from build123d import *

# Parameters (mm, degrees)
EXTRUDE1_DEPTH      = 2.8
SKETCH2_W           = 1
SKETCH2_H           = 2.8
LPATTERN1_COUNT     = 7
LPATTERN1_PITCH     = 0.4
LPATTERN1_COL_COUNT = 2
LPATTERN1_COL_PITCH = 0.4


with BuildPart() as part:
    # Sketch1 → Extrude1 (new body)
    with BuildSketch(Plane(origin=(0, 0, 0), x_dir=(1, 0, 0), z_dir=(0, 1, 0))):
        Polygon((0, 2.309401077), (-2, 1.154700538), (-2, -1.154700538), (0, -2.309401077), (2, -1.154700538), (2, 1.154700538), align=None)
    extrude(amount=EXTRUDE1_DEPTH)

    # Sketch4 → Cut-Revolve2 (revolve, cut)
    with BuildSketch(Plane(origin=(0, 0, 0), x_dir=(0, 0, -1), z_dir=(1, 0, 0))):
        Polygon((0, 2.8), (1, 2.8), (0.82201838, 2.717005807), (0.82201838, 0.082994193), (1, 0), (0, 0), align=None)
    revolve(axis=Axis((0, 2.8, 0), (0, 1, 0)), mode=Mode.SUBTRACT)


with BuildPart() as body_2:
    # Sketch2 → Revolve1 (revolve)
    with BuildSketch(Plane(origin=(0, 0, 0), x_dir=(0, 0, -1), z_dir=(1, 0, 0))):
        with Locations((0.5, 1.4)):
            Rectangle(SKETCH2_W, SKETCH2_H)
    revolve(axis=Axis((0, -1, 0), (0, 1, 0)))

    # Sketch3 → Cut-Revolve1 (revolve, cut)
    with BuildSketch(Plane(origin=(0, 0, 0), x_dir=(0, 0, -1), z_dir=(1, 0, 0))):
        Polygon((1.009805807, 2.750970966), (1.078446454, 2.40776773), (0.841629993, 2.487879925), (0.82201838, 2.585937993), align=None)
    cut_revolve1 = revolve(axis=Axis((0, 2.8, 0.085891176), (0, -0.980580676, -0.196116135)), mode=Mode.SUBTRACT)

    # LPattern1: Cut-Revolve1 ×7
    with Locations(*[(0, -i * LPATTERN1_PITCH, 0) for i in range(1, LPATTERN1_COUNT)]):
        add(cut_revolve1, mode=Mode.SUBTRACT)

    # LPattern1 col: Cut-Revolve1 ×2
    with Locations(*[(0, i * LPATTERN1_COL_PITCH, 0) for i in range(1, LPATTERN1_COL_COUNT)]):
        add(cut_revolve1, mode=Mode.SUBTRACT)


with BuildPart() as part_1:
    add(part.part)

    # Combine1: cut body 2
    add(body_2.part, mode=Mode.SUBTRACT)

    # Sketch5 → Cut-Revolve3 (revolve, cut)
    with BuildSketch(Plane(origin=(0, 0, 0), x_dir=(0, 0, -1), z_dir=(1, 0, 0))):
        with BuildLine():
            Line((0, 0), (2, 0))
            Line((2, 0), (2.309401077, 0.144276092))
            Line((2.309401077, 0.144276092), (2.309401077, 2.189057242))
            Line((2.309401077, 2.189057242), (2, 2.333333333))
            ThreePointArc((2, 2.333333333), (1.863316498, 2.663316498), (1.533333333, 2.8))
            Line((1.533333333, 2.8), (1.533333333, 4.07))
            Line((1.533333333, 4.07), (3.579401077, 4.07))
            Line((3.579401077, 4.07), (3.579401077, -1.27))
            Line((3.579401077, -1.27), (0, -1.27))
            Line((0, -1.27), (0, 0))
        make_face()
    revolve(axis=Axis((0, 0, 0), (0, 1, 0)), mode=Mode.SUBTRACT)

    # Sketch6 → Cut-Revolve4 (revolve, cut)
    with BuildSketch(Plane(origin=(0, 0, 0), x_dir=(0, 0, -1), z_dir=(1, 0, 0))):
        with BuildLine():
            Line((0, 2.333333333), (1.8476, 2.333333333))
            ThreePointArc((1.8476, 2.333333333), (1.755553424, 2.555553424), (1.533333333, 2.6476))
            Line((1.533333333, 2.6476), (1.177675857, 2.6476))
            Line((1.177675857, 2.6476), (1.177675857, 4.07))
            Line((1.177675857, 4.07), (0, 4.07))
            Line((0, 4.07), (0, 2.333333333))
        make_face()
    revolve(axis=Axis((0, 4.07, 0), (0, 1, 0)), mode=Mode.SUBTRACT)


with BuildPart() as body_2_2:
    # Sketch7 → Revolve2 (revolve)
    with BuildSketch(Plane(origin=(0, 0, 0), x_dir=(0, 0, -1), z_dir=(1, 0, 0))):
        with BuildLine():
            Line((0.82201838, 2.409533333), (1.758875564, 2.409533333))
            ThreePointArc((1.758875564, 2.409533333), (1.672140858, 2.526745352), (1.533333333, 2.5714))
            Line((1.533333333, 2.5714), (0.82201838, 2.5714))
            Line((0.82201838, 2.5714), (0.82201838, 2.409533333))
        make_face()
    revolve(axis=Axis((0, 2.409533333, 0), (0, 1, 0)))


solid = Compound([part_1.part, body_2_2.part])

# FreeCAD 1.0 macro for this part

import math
import FreeCAD as App
import Part
import Sketcher
Q = App.Units.Quantity

doc = App.newDocument("Part")
body = doc.addObject("PartDesign::Body", "Body")

# Sketch on XZ plane
sketch1 = doc.addObject("Sketcher::SketchObject", "Sketch")
body.addObject(sketch1)
sketch1.AttachmentSupport = (doc.XZ_Plane, [""])
sketch1.MapMode = "FlatFace"
sketch1.addGeometry([
    Part.LineSegment(App.Vector(0, -2.3, 0), App.Vector(-2, -1.2, 0)),  # 0
    Part.LineSegment(App.Vector(-2, -1.2, 0), App.Vector(-2, 1.2, 0)),  # 1
    Part.LineSegment(App.Vector(-2, 1.2, 0), App.Vector(0, 2.3, 0)),  # 2
    Part.LineSegment(App.Vector(0, 2.3, 0), App.Vector(2, 1.2, 0)),  # 3
    Part.LineSegment(App.Vector(2, 1.2, 0), App.Vector(2, -1.2, 0)),  # 4
    Part.LineSegment(App.Vector(2, -1.2, 0), App.Vector(0, -2.3, 0)),  # 5
], False)
sketch1.addConstraint([
    Sketcher.Constraint("Coincident", 0, 2, 1, 1),
    Sketcher.Constraint("Coincident", 1, 2, 2, 1),
    Sketcher.Constraint("Coincident", 2, 2, 3, 1),
    Sketcher.Constraint("Coincident", 3, 2, 4, 1),
    Sketcher.Constraint("Coincident", 4, 2, 5, 1),
    Sketcher.Constraint("Coincident", 5, 2, 0, 1),
    Sketcher.Constraint("Vertical", 1),
    Sketcher.Constraint("Vertical", 4),
    Sketcher.Constraint("Symmetric", 0, 2, 3, 2, -1, 1),
    Sketcher.Constraint("Symmetric", 2, 2, 5, 2, -1, 1),
    Sketcher.Constraint("PointOnObject", 2, 2, -2),
    Sketcher.Constraint("Parallel", 2, 5),
    Sketcher.Constraint("Horizontal", 1, 2, 3, 2),
    Sketcher.Constraint("Angle", 0, Q("150 deg")),
    Sketcher.Constraint("DistanceX", 0, 2, -1, 1, 2.0),
    Sketcher.Constraint("DistanceY", 1, 1, 1, 2, 2.309401),
])
pad1 = doc.addObject("PartDesign::Pad", "Pad")
body.addObject(pad1)
pad1.Profile = sketch1
pad1.Length = 2.8
pad1.Reversed = True

# Sketch on YZ plane
sketch2 = doc.addObject("Sketcher::SketchObject", "Sketch001")
body.addObject(sketch2)
sketch2.AttachmentSupport = (doc.YZ_Plane, [""])
sketch2.MapMode = "FlatFace"
sketch2.addGeometry([
    Part.LineSegment(App.Vector(2.8, -1, 0), App.Vector(2.8, 0, 0)),  # 0
    Part.LineSegment(App.Vector(2.8, 0, 0), App.Vector(0, 0, 0)),  # 1
    Part.LineSegment(App.Vector(0, 0, 0), App.Vector(0, -1, 0)),  # 2
    Part.LineSegment(App.Vector(0, -1, 0), App.Vector(0.08, -0.82, 0)),  # 3
    Part.LineSegment(App.Vector(0.08, -0.82, 0), App.Vector(2.72, -0.82, 0)),  # 4
    Part.LineSegment(App.Vector(2.72, -0.82, 0), App.Vector(2.8, -1, 0)),  # 5
], False)
sketch2.addConstraint([
    Sketcher.Constraint("Coincident", 0, 2, 1, 1),
    Sketcher.Constraint("Coincident", 1, 2, 2, 1),
    Sketcher.Constraint("Coincident", 2, 2, 3, 1),
    Sketcher.Constraint("Coincident", 3, 2, 4, 1),
    Sketcher.Constraint("Coincident", 4, 2, 5, 1),
    Sketcher.Constraint("Coincident", 5, 2, 0, 1),
    Sketcher.Constraint("Vertical", 0),
    Sketcher.Constraint("Horizontal", 1),
    Sketcher.Constraint("Vertical", 2),
    Sketcher.Constraint("Horizontal", 4),
    Sketcher.Constraint("Coincident", 1, 2, -1, 1),
    Sketcher.Constraint("Horizontal", 2, 2, 5, 2),
    Sketcher.Constraint("Equal", 3, 5),
    Sketcher.Constraint("DistanceY", 0, 1, 0, 2, 1.0),
    Sketcher.Constraint("Angle", 3, Q("65 deg")),
    Sketcher.Constraint("DistanceX", 1, 2, 1, 1, 2.8),
    Sketcher.Constraint("DistanceX", 4, 1, 4, 2, 2.634012),
])
groove = doc.addObject("PartDesign::Groove", "Groove")
body.addObject(groove)
groove.Profile = sketch2
groove.ReferenceAxis = (sketch2, ["H_Axis"])
groove.Angle = 360
body2 = doc.addObject("PartDesign::Body", "Body001")

# Sketch on YZ plane
sketch3 = doc.addObject("Sketcher::SketchObject", "Sketch002")
body2.addObject(sketch3)
sketch3.AttachmentSupport = (doc.getObject("YZ_Plane001"), [""])
sketch3.MapMode = "FlatFace"
sketch3.addGeometry([
    Part.LineSegment(App.Vector(2.8, 0, 0), App.Vector(0, 0, 0)),
    Part.LineSegment(App.Vector(0, 0, 0), App.Vector(0, -1, 0)),
    Part.LineSegment(App.Vector(0, -1, 0), App.Vector(2.8, -1, 0)),
    Part.LineSegment(App.Vector(2.8, -1, 0), App.Vector(2.8, 0, 0)),
], False)
sketch3.addConstraint([
    Sketcher.Constraint("Coincident", 0, 2, 1, 1),
    Sketcher.Constraint("Coincident", 1, 2, 2, 1),
    Sketcher.Constraint("Coincident", 2, 2, 3, 1),
    Sketcher.Constraint("Coincident", 3, 2, 0, 1),
    Sketcher.Constraint("Horizontal", 0),
    Sketcher.Constraint("Vertical", 1),
    Sketcher.Constraint("Horizontal", 2),
    Sketcher.Constraint("Vertical", 3),
    Sketcher.Constraint("Coincident", 0, 2, -1, 1),
    Sketcher.Constraint("DistanceY", 1, 2, 1, 1, 1.0),
    Sketcher.Constraint("DistanceX", 0, 2, 0, 1, 2.8),
])
revolution = doc.addObject("PartDesign::Revolution", "Revolution")
body2.addObject(revolution)
revolution.Profile = sketch3
revolution.ReferenceAxis = (sketch3, ["H_Axis"])
revolution.Angle = 360

# Sketch on YZ plane
sketch4 = doc.addObject("Sketcher::SketchObject", "Sketch003")
body2.addObject(sketch4)
sketch4.AttachmentSupport = (doc.getObject("YZ_Plane001"), [""])
sketch4.MapMode = "FlatFace"
sketch4.addGeometry([
    Part.LineSegment(App.Vector(2.41, -1.08, 0), App.Vector(2.75, -1.01, 0)),
    Part.LineSegment(App.Vector(2.75, -1.01, 0), App.Vector(2.59, -0.82, 0)),
    Part.LineSegment(App.Vector(2.59, -0.82, 0), App.Vector(2.49, -0.84, 0)),
    Part.LineSegment(App.Vector(2.49, -0.84, 0), App.Vector(2.41, -1.08, 0)),
], False)
sketch4.addGeometry(Part.LineSegment(App.Vector(2.54, 0.03, 0), App.Vector(2.2, -0.03, 0)), True)  # axis
sketch4.addConstraint([
    Sketcher.Constraint("Coincident", 0, 2, 1, 1),
    Sketcher.Constraint("Coincident", 1, 2, 2, 1),
    Sketcher.Constraint("Coincident", 2, 2, 3, 1),
    Sketcher.Constraint("Coincident", 3, 2, 0, 1),
    Sketcher.Constraint("Parallel", 0, 2),
    Sketcher.Constraint("Parallel", 2, 4),
    Sketcher.Constraint("Equal", 1, 3),
    Sketcher.Constraint("Equal", 0, 4),
    Sketcher.Constraint("Distance", 2, 0.1),
    Sketcher.Constraint("Distance", 0, 0.35),
    Sketcher.Constraint("Distance", 1, 0.25),
    Sketcher.Constraint("DistanceY", 1, 2, 4, 2, 0.787698),
    Sketcher.Constraint("DistanceX", -1, 1, 0, 2, 2.750971),
    Sketcher.Constraint("DistanceY", 1, 2, -1, 1, 0.822018),
    Sketcher.Constraint("DistanceX", -1, 1, 2, 2, 2.48788),
    Sketcher.Constraint("DistanceX", 3, 2, 4, 1, 0.134378),
])
groove2 = doc.addObject("PartDesign::Groove", "Groove001")
body2.addObject(groove2)
groove2.Profile = sketch4
groove2.ReferenceAxis = (sketch4, ["Axis0"])
groove2.Angle = 360
doc.recompute()

linearpattern = doc.addObject("PartDesign::LinearPattern", "LinearPattern")
body2.addObject(linearpattern)
linearpattern.Originals = [groove2]
linearpattern.Direction = (doc.getObject("Y_Axis001"), [""])
linearpattern.Mode = "offset"
linearpattern.Offset = 0.4
linearpattern.Occurrences = 7
linearpattern.Reversed = True
body2.Tip = linearpattern
doc.recompute()

linearpattern2 = doc.addObject("PartDesign::LinearPattern", "LinearPattern001")
body2.addObject(linearpattern2)
linearpattern2.Originals = [groove2]
linearpattern2.Direction = (doc.getObject("Y_Axis001"), [""])
linearpattern2.Mode = "offset"
linearpattern2.Offset = 0.4
linearpattern2.Occurrences = 2
body2.Tip = linearpattern2
doc.recompute()

boolean = doc.addObject("PartDesign::Boolean", "Boolean")
body.addObject(boolean)
boolean.Type = "Cut"
boolean.addObjects([body2])

# Sketch on YZ plane
sketch5 = doc.addObject("Sketcher::SketchObject", "Sketch004")
body.addObject(sketch5)
sketch5.AttachmentSupport = (doc.YZ_Plane, [""])
sketch5.MapMode = "FlatFace"
sketch5.addGeometry([
    Part.LineSegment(App.Vector(0, -2, 0), App.Vector(0, 0, 0)),  # 0
    Part.LineSegment(App.Vector(0, 0, 0), App.Vector(-1.27, 0, 0)),  # 1
    Part.LineSegment(App.Vector(-1.27, 0, 0), App.Vector(-1.27, -3.58, 0)),  # 2
    Part.LineSegment(App.Vector(-1.27, -3.58, 0), App.Vector(4.07, -3.58, 0)),  # 3
    Part.LineSegment(App.Vector(4.07, -3.58, 0), App.Vector(4.07, -1.53, 0)),  # 4
    Part.LineSegment(App.Vector(4.07, -1.53, 0), App.Vector(2.8, -1.53, 0)),  # 5
    Part.ArcOfCircle(Part.Circle(App.Vector(2.33, -1.53, 0), App.Vector(0, 0, 1), 0.47), math.radians(-90), math.radians(0)),  # 6
    Part.LineSegment(App.Vector(2.33, -2, 0), App.Vector(2.19, -2.31, 0)),  # 7
    Part.LineSegment(App.Vector(2.19, -2.31, 0), App.Vector(0.14, -2.31, 0)),  # 8
    Part.LineSegment(App.Vector(0.14, -2.31, 0), App.Vector(0, -2, 0)),  # 9
], False)
sketch5.addConstraint([
    Sketcher.Constraint("Coincident", 0, 2, 1, 1),
    Sketcher.Constraint("Coincident", 1, 2, 2, 1),
    Sketcher.Constraint("Coincident", 2, 2, 3, 1),
    Sketcher.Constraint("Coincident", 3, 2, 4, 1),
    Sketcher.Constraint("Coincident", 4, 2, 5, 1),
    Sketcher.Constraint("Coincident", 5, 2, 6, 2),
    Sketcher.Constraint("Coincident", 6, 1, 7, 1),
    Sketcher.Constraint("Coincident", 7, 2, 8, 1),
    Sketcher.Constraint("Coincident", 8, 2, 9, 1),
    Sketcher.Constraint("Coincident", 9, 2, 0, 1),
    Sketcher.Constraint("Vertical", 0),
    Sketcher.Constraint("Horizontal", 1),
    Sketcher.Constraint("Vertical", 2),
    Sketcher.Constraint("Horizontal", 3),
    Sketcher.Constraint("Vertical", 4),
    Sketcher.Constraint("Horizontal", 5),
    Sketcher.Constraint("Horizontal", 8),
    Sketcher.Constraint("Coincident", 0, 2, -1, 1),
    Sketcher.Constraint("Horizontal", 6, 3, 4, 2),
    Sketcher.Constraint("Horizontal", 6, 1, 9, 2),
    Sketcher.Constraint("Equal", 1, 5),
    Sketcher.Constraint("Equal", 7, 9),
    Sketcher.Constraint("DistanceY", 0, 1, 0, 2, 2.0),
    Sketcher.Constraint("Angle", 7, Q("-115 deg")),
    Sketcher.Constraint("DistanceX", 1, 2, 1, 1, 1.27),
    Sketcher.Constraint("DistanceX", 3, 1, 3, 2, 5.34),
    Sketcher.Constraint("DistanceY", 3, 2, 7, 2, 1.27),
    Sketcher.Constraint("DistanceY", 2, 2, 2, 1, 3.579401),
    Sketcher.Constraint("Radius", 6, 0.466667),
    Sketcher.Constraint("DistanceX", 8, 2, 8, 1, 2.044781),
])
groove3 = doc.addObject("PartDesign::Groove", "Groove002")
body.addObject(groove3)
groove3.Profile = sketch5
groove3.ReferenceAxis = (sketch5, ["H_Axis"])
groove3.Angle = 360

# Sketch on YZ plane
sketch6 = doc.addObject("Sketcher::SketchObject", "Sketch005")
body.addObject(sketch6)
sketch6.AttachmentSupport = (doc.YZ_Plane, [""])
sketch6.MapMode = "FlatFace"
sketch6.addGeometry([
    Part.LineSegment(App.Vector(2.33, 0, 0), App.Vector(2.33, -1.85, 0)),  # 0
    Part.ArcOfCircle(Part.Circle(App.Vector(2.33, -1.53, 0), App.Vector(0, 0, 1), 0.31), math.radians(-90), math.radians(0)),  # 1
    Part.LineSegment(App.Vector(2.65, -1.53, 0), App.Vector(2.65, -1.18, 0)),  # 2
    Part.LineSegment(App.Vector(2.65, -1.18, 0), App.Vector(4.07, -1.18, 0)),  # 3
    Part.LineSegment(App.Vector(4.07, -1.18, 0), App.Vector(4.07, 0, 0)),  # 4
    Part.LineSegment(App.Vector(4.07, 0, 0), App.Vector(2.33, 0, 0)),  # 5
], False)
sketch6.addConstraint([
    Sketcher.Constraint("Coincident", 0, 2, 1, 1),
    Sketcher.Constraint("Tangent", 1, 2, 2, 1),
    Sketcher.Constraint("Coincident", 2, 2, 3, 1),
    Sketcher.Constraint("Coincident", 3, 2, 4, 1),
    Sketcher.Constraint("Coincident", 4, 2, 5, 1),
    Sketcher.Constraint("Coincident", 5, 2, 0, 1),
    Sketcher.Constraint("Vertical", 0),
    Sketcher.Constraint("Vertical", 2),
    Sketcher.Constraint("Horizontal", 3),
    Sketcher.Constraint("Vertical", 4),
    Sketcher.Constraint("Horizontal", 5),
    Sketcher.Constraint("PointOnObject", 4, 2, -1),
    Sketcher.Constraint("Vertical", 1, 3, 0, 2),
    Sketcher.Constraint("DistanceX", -1, 1, 3, 2, 4.07),
    Sketcher.Constraint("DistanceX", 3, 1, 3, 2, 1.4224),
    Sketcher.Constraint("DistanceY", 0, 2, 0, 1, 1.8476),
    Sketcher.Constraint("Radius", 1, 0.314267),
    Sketcher.Constraint("DistanceY", 2, 1, 2, 2, 0.355657),
])
groove4 = doc.addObject("PartDesign::Groove", "Groove003")
body.addObject(groove4)
groove4.Profile = sketch6
groove4.ReferenceAxis = (sketch6, ["H_Axis"])
groove4.Angle = 360
body3 = doc.addObject("PartDesign::Body", "Body002")

# Sketch on YZ plane
sketch7 = doc.addObject("Sketcher::SketchObject", "Sketch006")
body3.addObject(sketch7)
sketch7.AttachmentSupport = (doc.getObject("YZ_Plane002"), [""])
sketch7.MapMode = "FlatFace"
sketch7.addGeometry([
    Part.LineSegment(App.Vector(2.41, -0.82, 0), App.Vector(2.41, -1.76, 0)),
    Part.ArcOfCircle(Part.Circle(App.Vector(2.33, -1.53, 0), App.Vector(0, 0, 1), 0.24), math.radians(-71), math.radians(0)),
    Part.LineSegment(App.Vector(2.57, -1.53, 0), App.Vector(2.57, -0.82, 0)),
    Part.LineSegment(App.Vector(2.57, -0.82, 0), App.Vector(2.41, -0.82, 0)),
], False)
sketch7.addConstraint([
    Sketcher.Constraint("Coincident", 0, 2, 1, 1),
    Sketcher.Constraint("Tangent", 1, 2, 2, 1),
    Sketcher.Constraint("Coincident", 2, 2, 3, 1),
    Sketcher.Constraint("Coincident", 3, 2, 0, 1),
    Sketcher.Constraint("Vertical", 0),
    Sketcher.Constraint("Vertical", 2),
    Sketcher.Constraint("Horizontal", 3),
    Sketcher.Constraint("Radius", 1, 0.238067),
    Sketcher.Constraint("DistanceX", -1, 1, 1, 2, 2.5714),
    Sketcher.Constraint("DistanceX", 1, 3, 0, 2, 0.0762),
    Sketcher.Constraint("DistanceY", 0, 2, 0, 1, 0.936857),
    Sketcher.Constraint("DistanceY", 2, 2, -1, 1, 0.822018),
])
revolution2 = doc.addObject("PartDesign::Revolution", "Revolution001")
body3.addObject(revolution2)
revolution2.Profile = sketch7
revolution2.ReferenceAxis = (sketch7, ["H_Axis"])
revolution2.Angle = 360

doc.recompute()
